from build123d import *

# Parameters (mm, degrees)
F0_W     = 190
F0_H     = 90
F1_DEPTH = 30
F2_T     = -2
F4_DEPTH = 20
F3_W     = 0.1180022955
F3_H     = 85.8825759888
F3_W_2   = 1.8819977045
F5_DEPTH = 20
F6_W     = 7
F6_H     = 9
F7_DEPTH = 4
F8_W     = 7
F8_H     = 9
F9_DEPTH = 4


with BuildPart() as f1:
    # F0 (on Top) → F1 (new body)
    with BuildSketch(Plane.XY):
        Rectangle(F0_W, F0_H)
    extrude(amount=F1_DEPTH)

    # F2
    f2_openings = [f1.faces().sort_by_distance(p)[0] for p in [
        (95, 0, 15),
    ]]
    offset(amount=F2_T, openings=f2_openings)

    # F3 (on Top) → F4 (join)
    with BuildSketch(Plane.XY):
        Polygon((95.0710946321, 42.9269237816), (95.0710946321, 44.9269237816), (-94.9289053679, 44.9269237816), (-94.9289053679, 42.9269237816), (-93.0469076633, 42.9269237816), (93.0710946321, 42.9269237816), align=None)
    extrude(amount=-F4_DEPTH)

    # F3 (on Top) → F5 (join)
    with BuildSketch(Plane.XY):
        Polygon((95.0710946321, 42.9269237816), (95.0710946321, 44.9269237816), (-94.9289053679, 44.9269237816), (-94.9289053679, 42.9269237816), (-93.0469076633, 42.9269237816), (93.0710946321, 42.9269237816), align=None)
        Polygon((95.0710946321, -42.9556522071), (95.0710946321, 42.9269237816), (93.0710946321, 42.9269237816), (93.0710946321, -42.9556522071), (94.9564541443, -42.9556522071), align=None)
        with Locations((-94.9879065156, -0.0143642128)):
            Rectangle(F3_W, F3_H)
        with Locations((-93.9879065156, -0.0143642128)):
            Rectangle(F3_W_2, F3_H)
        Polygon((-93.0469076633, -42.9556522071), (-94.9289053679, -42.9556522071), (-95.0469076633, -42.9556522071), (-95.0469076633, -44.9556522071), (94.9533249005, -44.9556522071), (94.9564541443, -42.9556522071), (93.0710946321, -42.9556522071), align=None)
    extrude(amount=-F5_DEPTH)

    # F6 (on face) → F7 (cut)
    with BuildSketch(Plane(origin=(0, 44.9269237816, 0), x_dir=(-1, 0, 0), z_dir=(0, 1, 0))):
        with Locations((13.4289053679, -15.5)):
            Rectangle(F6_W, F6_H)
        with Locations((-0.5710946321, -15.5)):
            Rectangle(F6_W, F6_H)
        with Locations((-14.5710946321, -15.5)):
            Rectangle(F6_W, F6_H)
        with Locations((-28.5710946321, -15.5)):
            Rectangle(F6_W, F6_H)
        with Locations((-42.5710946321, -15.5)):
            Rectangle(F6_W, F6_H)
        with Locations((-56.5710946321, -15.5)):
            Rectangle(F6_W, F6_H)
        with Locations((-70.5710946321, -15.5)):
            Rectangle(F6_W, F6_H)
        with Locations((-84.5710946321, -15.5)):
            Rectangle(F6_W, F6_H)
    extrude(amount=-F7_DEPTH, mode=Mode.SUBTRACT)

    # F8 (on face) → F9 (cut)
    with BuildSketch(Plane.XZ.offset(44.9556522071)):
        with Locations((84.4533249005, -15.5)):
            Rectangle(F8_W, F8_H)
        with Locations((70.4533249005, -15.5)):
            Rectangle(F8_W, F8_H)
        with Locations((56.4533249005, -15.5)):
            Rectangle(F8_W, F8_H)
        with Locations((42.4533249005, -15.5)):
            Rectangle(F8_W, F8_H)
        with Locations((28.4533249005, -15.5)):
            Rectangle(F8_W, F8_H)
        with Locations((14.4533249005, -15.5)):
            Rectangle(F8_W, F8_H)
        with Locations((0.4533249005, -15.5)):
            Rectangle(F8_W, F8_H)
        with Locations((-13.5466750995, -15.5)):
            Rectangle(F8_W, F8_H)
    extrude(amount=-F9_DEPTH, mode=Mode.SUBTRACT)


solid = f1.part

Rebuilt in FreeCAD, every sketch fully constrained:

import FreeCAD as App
import Part
import Sketcher

V = App.Vector
Q = App.Units.Quantity


def faces_at(feature, points):
    """Names of the faces that lie closest to the given points."""
    faces = feature.Shape.Faces
    near = lambda p: min(range(len(faces)), key=lambda i: faces[i].distToShape(Part.Vertex(*p))[0])
    return sorted({f"Face{near(p) + 1}" for p in points})


def add_polygon(sketch, points):
    """Adds a closed chain of lines whose ends are joined by coincident constraints."""
    first, n = sketch.GeometryCount, len(points)
    for a, b in zip(points, points[1:] + points[:1]):
        sketch.addGeometry(Part.LineSegment(App.Vector(*a, 0), App.Vector(*b, 0)), False)
    for i in range(n):
        sketch.addConstraint(Sketcher.Constraint("Coincident", first + i, 2, first + (i + 1) % n, 1))

doc = App.newDocument("Part")
params = doc.addObject("Spreadsheet::Sheet", "Params")
for row, (alias, value) in enumerate([
    ("sketch1_width", "190 mm"),
    ("sketch1_height", "90 mm"),
    ("pad1_length", "30 mm"),
    ("thickness_wall", "2 mm"),
    ("sketch2_width", "190 mm"),
    ("sketch2_height", "2 mm"),
    ("pad2_length", "20 mm"),
    ("sketch3_width", "190 mm"),
    ("sketch3_height", "2 mm"),
    ("pad3_length", "20 mm"),
    ("sketch4_width", "7 mm"),
    ("sketch4_height", "9 mm"),
    ("pocket1_length", "4 mm"),
    ("sketch5_width", "7 mm"),
    ("sketch5_height", "9 mm"),
    ("pocket2_length", "4 mm"),
], start=1):
    params.set(f"A{row}", alias)
    params.set(f"B{row}", "=" + value)
    params.setAlias(f"B{row}", alias)

body = doc.addObject("PartDesign::Body", "Body")

# Sketch on XY plane
sketch1 = doc.addObject("Sketcher::SketchObject", "Sketch")
body.addObject(sketch1)
sketch1.AttachmentSupport = (doc.XY_Plane, [""])
sketch1.MapMode = "FlatFace"
add_polygon(sketch1, [(-95, 45), (-95, -45), (95, -45), (95, 45)])  # lines 0-3
sketch1.addConstraint(Sketcher.Constraint("Vertical", 0))
sketch1.addConstraint(Sketcher.Constraint("Horizontal", 1))
sketch1.addConstraint(Sketcher.Constraint("Vertical", 2))
sketch1.addConstraint(Sketcher.Constraint("Horizontal", 3))
sketch1.addConstraint(Sketcher.Constraint("Symmetric", 0, 2, 2, 2, -1, 1))
sketch1.addConstraint(Sketcher.Constraint("DistanceX", 1, 1, 1, 2, Q("190 mm")))
sketch1.addConstraint(Sketcher.Constraint("DistanceY", 0, 2, 0, 1, Q("90 mm")))
sketch1.setExpression("Constraints[9]", "Params.sketch1_width")
sketch1.setExpression("Constraints[10]", "Params.sketch1_height")
pad1 = doc.addObject("PartDesign::Pad", "Pad")
body.addObject(pad1)
pad1.Profile = sketch1
pad1.setExpression("Length", "Params.pad1_length")
doc.recompute()

thickness = doc.addObject("PartDesign::Thickness", "Thickness")
body.addObject(thickness)
thickness.Base = (pad1, faces_at(pad1, [(95, 0, 15)]))
thickness.setExpression("Value", "Params.thickness_wall")
thickness.Reversed = True
thickness.Join = "Arc"

# Sketch on XY plane
sketch2 = doc.addObject("Sketcher::SketchObject", "Sketch001")
body.addObject(sketch2)
sketch2.AttachmentSupport = (doc.XY_Plane, [""])
sketch2.MapMode = "FlatFace"
add_polygon(sketch2, [(95.1, 42.9), (95.1, 44.9), (-94.9, 44.9), (-94.9, 42.9)])  # lines 0-3
sketch2.addConstraint(Sketcher.Constraint("Vertical", 0))
sketch2.addConstraint(Sketcher.Constraint("Horizontal", 1))
sketch2.addConstraint(Sketcher.Constraint("Vertical", 2))
sketch2.addConstraint(Sketcher.Constraint("Horizontal", 3))
sketch2.addConstraint(Sketcher.Constraint("DistanceX", 1, 2, 1, 1, Q("190 mm")))
sketch2.addConstraint(Sketcher.Constraint("DistanceY", 0, 1, 0, 2, Q("2 mm")))
sketch2.addConstraint(Sketcher.Constraint("DistanceX", -1, 1, 0, 2, Q("95.071095 mm")))
sketch2.addConstraint(Sketcher.Constraint("DistanceY", -1, 1, 0, 2, Q("44.926924 mm")))
sketch2.setExpression("Constraints[8]", "Params.sketch2_width")
sketch2.setExpression("Constraints[9]", "Params.sketch2_height")
pad2 = doc.addObject("PartDesign::Pad", "Pad001")
body.addObject(pad2)
pad2.Profile = sketch2
pad2.setExpression("Length", "Params.pad2_length")
pad2.Reversed = True

# Sketch on XY plane
sketch3 = doc.addObject("Sketcher::SketchObject", "Sketch002")
body.addObject(sketch3)
sketch3.AttachmentSupport = (doc.XY_Plane, [""])
sketch3.MapMode = "FlatFace"
add_polygon(sketch3, [(95.07, 44.93), (-94.93, 44.93), (-94.93, 42.93), (-95.05, 42.93), (-95.05, -44.96), (94.95, -44.96), (94.96, -42.96), (95.07, -42.96)])  # lines 0-7
add_polygon(sketch3, [(-93.05, -42.96), (-93.05, 42.93), (93.07, 42.93), (93.07, -42.96)])  # lines 8-11
sketch3.addConstraint(Sketcher.Constraint("Horizontal", 0))
sketch3.addConstraint(Sketcher.Constraint("Vertical", 1))
sketch3.addConstraint(Sketcher.Constraint("Horizontal", 2))
sketch3.addConstraint(Sketcher.Constraint("Vertical", 3))
sketch3.addConstraint(Sketcher.Constraint("Horizontal", 4))
sketch3.addConstraint(Sketcher.Constraint("Horizontal", 6))
sketch3.addConstraint(Sketcher.Constraint("Vertical", 7))
sketch3.addConstraint(Sketcher.Constraint("Vertical", 8))
sketch3.addConstraint(Sketcher.Constraint("Horizontal", 9))
sketch3.addConstraint(Sketcher.Constraint("Vertical", 10))
sketch3.addConstraint(Sketcher.Constraint("Horizontal", 11))
sketch3.addConstraint(Sketcher.Constraint("Horizontal", 2, 2, 8, 2))
sketch3.addConstraint(Sketcher.Constraint("Horizontal", 6, 2, 10, 2))
sketch3.addConstraint(Sketcher.Constraint("Equal", 3, 7))
sketch3.addConstraint(Sketcher.Constraint("DistanceX", 0, 2, 0, 1, Q("190 mm")))
sketch3.addConstraint(Sketcher.Constraint("DistanceY", 1, 2, 1, 1, Q("2 mm")))
sketch3.addConstraint(Sketcher.Constraint("DistanceX", 2, 2, 8, 2, Q("2 mm")))
sketch3.addConstraint(Sketcher.Constraint("DistanceX", 9, 2, 7, 2, Q("2 mm")))
sketch3.addConstraint(Sketcher.Constraint("DistanceX", 6, 1, 6, 2, Q("0.11464 mm")))
sketch3.addConstraint(Sketcher.Constraint("DistanceX", 2, 2, 2, 1, Q("0.118002 mm")))
sketch3.addConstraint(Sketcher.Constraint("DistanceX", 4, 1, 4, 2, Q("190.000233 mm")))
sketch3.addConstraint(Sketcher.Constraint("DistanceY", 3, 2, 3, 1, Q("87.882576 mm")))
sketch3.addConstraint(Sketcher.Constraint("DistanceX", 0, 2, -1, 1, Q("94.928905 mm")))
sketch3.addConstraint(Sketcher.Constraint("DistanceY", -1, 1, 0, 2, Q("44.926924 mm")))
sketch3.setExpression("Constraints[26]", "Params.sketch3_width")
sketch3.setExpression("Constraints[27]", "Params.sketch3_height")
pad3 = doc.addObject("PartDesign::Pad", "Pad002")
body.addObject(pad3)
pad3.Profile = sketch3
pad3.setExpression("Length", "Params.pad3_length")
pad3.Reversed = True

# Sketch on XZ plane
sketch4 = doc.addObject("Sketcher::SketchObject", "Sketch003")
body.addObject(sketch4)
sketch4.AttachmentSupport = (doc.XZ_Plane, [""])
sketch4.MapMode = "FlatFace"
sketch4.AttachmentOffset = App.Placement(V(0, 0, -44.926924), App.Rotation())
add_polygon(sketch4, [(-10, -11), (-10, -20), (-17, -20), (-17, -11)])  # lines 0-3
add_polygon(sketch4, [(4, -11), (4, -20), (-3, -20), (-3, -11)])  # lines 4-7
add_polygon(sketch4, [(18, -11), (18, -20), (11, -20), (11, -11)])  # lines 8-11
add_polygon(sketch4, [(32, -11), (32, -20), (25, -20), (25, -11)])  # lines 12-15
add_polygon(sketch4, [(46, -11), (46, -20), (39, -20), (39, -11)])  # lines 16-19
add_polygon(sketch4, [(60, -11), (60, -20), (53, -20), (53, -11)])  # lines 20-23
add_polygon(sketch4, [(74, -11), (74, -20), (67, -20), (67, -11)])  # lines 24-27
add_polygon(sketch4, [(88, -11), (88, -20), (81, -20), (81, -11)])  # lines 28-31
sketch4.addConstraint(Sketcher.Constraint("Vertical", 0))
sketch4.addConstraint(Sketcher.Constraint("Horizontal", 1))
sketch4.addConstraint(Sketcher.Constraint("Vertical", 2))
sketch4.addConstraint(Sketcher.Constraint("Horizontal", 3))
sketch4.addConstraint(Sketcher.Constraint("Vertical", 4))
sketch4.addConstraint(Sketcher.Constraint("Horizontal", 5))
sketch4.addConstraint(Sketcher.Constraint("Vertical", 6))
sketch4.addConstraint(Sketcher.Constraint("Horizontal", 7))
sketch4.addConstraint(Sketcher.Constraint("Vertical", 8))
sketch4.addConstraint(Sketcher.Constraint("Horizontal", 9))
sketch4.addConstraint(Sketcher.Constraint("Vertical", 10))
sketch4.addConstraint(Sketcher.Constraint("Horizontal", 11))
sketch4.addConstraint(Sketcher.Constraint("Vertical", 12))
sketch4.addConstraint(Sketcher.Constraint("Horizontal", 13))
sketch4.addConstraint(Sketcher.Constraint("Vertical", 14))
sketch4.addConstraint(Sketcher.Constraint("Horizontal", 15))
sketch4.addConstraint(Sketcher.Constraint("Vertical", 16))
sketch4.addConstraint(Sketcher.Constraint("Horizontal", 17))
sketch4.addConstraint(Sketcher.Constraint("Vertical", 18))
sketch4.addConstraint(Sketcher.Constraint("Horizontal", 19))
sketch4.addConstraint(Sketcher.Constraint("Vertical", 20))
sketch4.addConstraint(Sketcher.Constraint("Horizontal", 21))
sketch4.addConstraint(Sketcher.Constraint("Vertical", 22))
sketch4.addConstraint(Sketcher.Constraint("Horizontal", 23))
sketch4.addConstraint(Sketcher.Constraint("Vertical", 24))
sketch4.addConstraint(Sketcher.Constraint("Horizontal", 25))
sketch4.addConstraint(Sketcher.Constraint("Vertical", 26))
sketch4.addConstraint(Sketcher.Constraint("Horizontal", 27))
sketch4.addConstraint(Sketcher.Constraint("Vertical", 28))
sketch4.addConstraint(Sketcher.Constraint("Horizontal", 29))
sketch4.addConstraint(Sketcher.Constraint("Vertical", 30))
sketch4.addConstraint(Sketcher.Constraint("Horizontal", 31))
sketch4.addConstraint(Sketcher.Constraint("Horizontal", 1, 2, 4, 2))
sketch4.addConstraint(Sketcher.Constraint("Horizontal", 3, 2, 6, 2))
sketch4.addConstraint(Sketcher.Constraint("Horizontal", 5, 2, 8, 2))
sketch4.addConstraint(Sketcher.Constraint("Horizontal", 7, 2, 10, 2))
sketch4.addConstraint(Sketcher.Constraint("Horizontal", 9, 2, 12, 2))
sketch4.addConstraint(Sketcher.Constraint("Horizontal", 11, 2, 14, 2))
sketch4.addConstraint(Sketcher.Constraint("Horizontal", 13, 2, 16, 2))
sketch4.addConstraint(Sketcher.Constraint("Horizontal", 15, 2, 18, 2))
sketch4.addConstraint(Sketcher.Constraint("Horizontal", 17, 2, 20, 2))
sketch4.addConstraint(Sketcher.Constraint("Horizontal", 19, 2, 22, 2))
sketch4.addConstraint(Sketcher.Constraint("Horizontal", 21, 2, 24, 2))
sketch4.addConstraint(Sketcher.Constraint("Horizontal", 23, 2, 26, 2))
sketch4.addConstraint(Sketcher.Constraint("Horizontal", 25, 2, 28, 2))
sketch4.addConstraint(Sketcher.Constraint("Horizontal", 27, 2, 30, 2))
sketch4.addConstraint(Sketcher.Constraint("Equal", 3, 5))
sketch4.addConstraint(Sketcher.Constraint("Equal", 7, 9))
sketch4.addConstraint(Sketcher.Constraint("Equal", 11, 13))
sketch4.addConstraint(Sketcher.Constraint("Equal", 15, 17))
sketch4.addConstraint(Sketcher.Constraint("Equal", 19, 21))
sketch4.addConstraint(Sketcher.Constraint("Equal", 23, 25))
sketch4.addConstraint(Sketcher.Constraint("Equal", 27, 29))
sketch4.addConstraint(Sketcher.Constraint("DistanceX", 1, 2, 1, 1, Q("7 mm")))
sketch4.addConstraint(Sketcher.Constraint("DistanceY", 0, 2, 0, 1, Q("9 mm")))
sketch4.addConstraint(Sketcher.Constraint("DistanceY", 0, 2, -1, 1, Q("20 mm")))
sketch4.addConstraint(Sketcher.Constraint("DistanceX", 0, 2, 4, 2, Q("14 mm")))
sketch4.addConstraint(Sketcher.Constraint("DistanceX", 4, 2, 8, 2, Q("14 mm")))
sketch4.addConstraint(Sketcher.Constraint("DistanceX", 8, 2, 12, 2, Q("14 mm")))
sketch4.addConstraint(Sketcher.Constraint("DistanceX", 12, 2, 16, 2, Q("14 mm")))
sketch4.addConstraint(Sketcher.Constraint("DistanceX", 16, 2, 20, 2, Q("14 mm")))
sketch4.addConstraint(Sketcher.Constraint("DistanceX", 20, 2, 24, 2, Q("14 mm")))
sketch4.addConstraint(Sketcher.Constraint("DistanceX", 24, 2, 28, 2, Q("14 mm")))
sketch4.addConstraint(Sketcher.Constraint("DistanceX", 0, 2, -1, 1, Q("9.928905 mm")))
sketch4.setExpression("Constraints[85]", "Params.sketch4_width")
sketch4.setExpression("Constraints[86]", "Params.sketch4_height")
pocket1 = doc.addObject("PartDesign::Pocket", "Pocket")
body.addObject(pocket1)
pocket1.Profile = sketch4
pocket1.setExpression("Length", "Params.pocket1_length")
pocket1.Reversed = True

# Sketch on XZ plane
sketch5 = doc.addObject("Sketcher::SketchObject", "Sketch004")
body.addObject(sketch5)
sketch5.AttachmentSupport = (doc.XZ_Plane, [""])
sketch5.MapMode = "FlatFace"
sketch5.AttachmentOffset = App.Placement(V(0, 0, 44.955652), App.Rotation())
add_polygon(sketch5, [(81, -11), (81, -20), (88, -20), (88, -11)])  # lines 0-3
add_polygon(sketch5, [(67, -11), (67, -20), (74, -20), (74, -11)])  # lines 4-7
add_polygon(sketch5, [(53, -11), (53, -20), (60, -20), (60, -11)])  # lines 8-11
add_polygon(sketch5, [(39, -11), (39, -20), (46, -20), (46, -11)])  # lines 12-15
add_polygon(sketch5, [(25, -11), (25, -20), (32, -20), (32, -11)])  # lines 16-19
add_polygon(sketch5, [(11, -11), (11, -20), (18, -20), (18, -11)])  # lines 20-23
add_polygon(sketch5, [(-3, -11), (-3, -20), (4, -20), (4, -11)])  # lines 24-27
add_polygon(sketch5, [(-17, -11), (-17, -20), (-10, -20), (-10, -11)])  # lines 28-31
sketch5.addConstraint(Sketcher.Constraint("Vertical", 0))
sketch5.addConstraint(Sketcher.Constraint("Horizontal", 1))
sketch5.addConstraint(Sketcher.Constraint("Vertical", 2))
sketch5.addConstraint(Sketcher.Constraint("Horizontal", 3))
sketch5.addConstraint(Sketcher.Constraint("Vertical", 4))
sketch5.addConstraint(Sketcher.Constraint("Horizontal", 5))
sketch5.addConstraint(Sketcher.Constraint("Vertical", 6))
sketch5.addConstraint(Sketcher.Constraint("Horizontal", 7))
sketch5.addConstraint(Sketcher.Constraint("Vertical", 8))
sketch5.addConstraint(Sketcher.Constraint("Horizontal", 9))
sketch5.addConstraint(Sketcher.Constraint("Vertical", 10))
sketch5.addConstraint(Sketcher.Constraint("Horizontal", 11))
sketch5.addConstraint(Sketcher.Constraint("Vertical", 12))
sketch5.addConstraint(Sketcher.Constraint("Horizontal", 13))
sketch5.addConstraint(Sketcher.Constraint("Vertical", 14))
sketch5.addConstraint(Sketcher.Constraint("Horizontal", 15))
sketch5.addConstraint(Sketcher.Constraint("Vertical", 16))
sketch5.addConstraint(Sketcher.Constraint("Horizontal", 17))
sketch5.addConstraint(Sketcher.Constraint("Vertical", 18))
sketch5.addConstraint(Sketcher.Constraint("Horizontal", 19))
sketch5.addConstraint(Sketcher.Constraint("Vertical", 20))
sketch5.addConstraint(Sketcher.Constraint("Horizontal", 21))
sketch5.addConstraint(Sketcher.Constraint("Vertical", 22))
sketch5.addConstraint(Sketcher.Constraint("Horizontal", 23))
sketch5.addConstraint(Sketcher.Constraint("Vertical", 24))
sketch5.addConstraint(Sketcher.Constraint("Horizontal", 25))
sketch5.addConstraint(Sketcher.Constraint("Vertical", 26))
sketch5.addConstraint(Sketcher.Constraint("Horizontal", 27))
sketch5.addConstraint(Sketcher.Constraint("Vertical", 28))
sketch5.addConstraint(Sketcher.Constraint("Horizontal", 29))
sketch5.addConstraint(Sketcher.Constraint("Vertical", 30))
sketch5.addConstraint(Sketcher.Constraint("Horizontal", 31))
sketch5.addConstraint(Sketcher.Constraint("Horizontal", 1, 2, 4, 2))
sketch5.addConstraint(Sketcher.Constraint("Horizontal", 3, 2, 6, 2))
sketch5.addConstraint(Sketcher.Constraint("Horizontal", 5, 2, 8, 2))
sketch5.addConstraint(Sketcher.Constraint("Horizontal", 7, 2, 10, 2))
sketch5.addConstraint(Sketcher.Constraint("Horizontal", 9, 2, 12, 2))
sketch5.addConstraint(Sketcher.Constraint("Horizontal", 11, 2, 14, 2))
sketch5.addConstraint(Sketcher.Constraint("Horizontal", 13, 2, 16, 2))
sketch5.addConstraint(Sketcher.Constraint("Horizontal", 15, 2, 18, 2))
sketch5.addConstraint(Sketcher.Constraint("Horizontal", 17, 2, 20, 2))
sketch5.addConstraint(Sketcher.Constraint("Horizontal", 19, 2, 22, 2))
sketch5.addConstraint(Sketcher.Constraint("Horizontal", 21, 2, 24, 2))
sketch5.addConstraint(Sketcher.Constraint("Horizontal", 23, 2, 26, 2))
sketch5.addConstraint(Sketcher.Constraint("Horizontal", 25, 2, 28, 2))
sketch5.addConstraint(Sketcher.Constraint("Horizontal", 27, 2, 30, 2))
sketch5.addConstraint(Sketcher.Constraint("Equal", 3, 5))
sketch5.addConstraint(Sketcher.Constraint("Equal", 7, 9))
sketch5.addConstraint(Sketcher.Constraint("Equal", 11, 13))
sketch5.addConstraint(Sketcher.Constraint("Equal", 15, 17))
sketch5.addConstraint(Sketcher.Constraint("Equal", 19, 21))
sketch5.addConstraint(Sketcher.Constraint("Equal", 23, 25))
sketch5.addConstraint(Sketcher.Constraint("Equal", 27, 29))
sketch5.addConstraint(Sketcher.Constraint("DistanceX", 1, 1, 1, 2, Q("7 mm")))
sketch5.addConstraint(Sketcher.Constraint("DistanceY", 0, 2, 0, 1, Q("9 mm")))
sketch5.addConstraint(Sketcher.Constraint("DistanceY", 0, 2, -1, 1, Q("20 mm")))
sketch5.addConstraint(Sketcher.Constraint("DistanceX", 4, 2, 0, 2, Q("14 mm")))
sketch5.addConstraint(Sketcher.Constraint("DistanceX", 8, 2, 4, 2, Q("14 mm")))
sketch5.addConstraint(Sketcher.Constraint("DistanceX", 12, 2, 8, 2, Q("14 mm")))
sketch5.addConstraint(Sketcher.Constraint("DistanceX", 16, 2, 12, 2, Q("14 mm")))
sketch5.addConstraint(Sketcher.Constraint("DistanceX", 20, 2, 16, 2, Q("14 mm")))
sketch5.addConstraint(Sketcher.Constraint("DistanceX", 24, 2, 20, 2, Q("14 mm")))
sketch5.addConstraint(Sketcher.Constraint("DistanceX", 28, 2, 24, 2, Q("14 mm")))
sketch5.addConstraint(Sketcher.Constraint("DistanceX", -1, 1, 0, 2, Q("80.953325 mm")))
sketch5.setExpression("Constraints[85]", "Params.sketch5_width")
sketch5.setExpression("Constraints[86]", "Params.sketch5_height")
pocket2 = doc.addObject("PartDesign::Pocket", "Pocket001")
body.addObject(pocket2)
pocket2.Profile = sketch5
pocket2.setExpression("Length", "Params.pocket2_length")

doc.recompute()
